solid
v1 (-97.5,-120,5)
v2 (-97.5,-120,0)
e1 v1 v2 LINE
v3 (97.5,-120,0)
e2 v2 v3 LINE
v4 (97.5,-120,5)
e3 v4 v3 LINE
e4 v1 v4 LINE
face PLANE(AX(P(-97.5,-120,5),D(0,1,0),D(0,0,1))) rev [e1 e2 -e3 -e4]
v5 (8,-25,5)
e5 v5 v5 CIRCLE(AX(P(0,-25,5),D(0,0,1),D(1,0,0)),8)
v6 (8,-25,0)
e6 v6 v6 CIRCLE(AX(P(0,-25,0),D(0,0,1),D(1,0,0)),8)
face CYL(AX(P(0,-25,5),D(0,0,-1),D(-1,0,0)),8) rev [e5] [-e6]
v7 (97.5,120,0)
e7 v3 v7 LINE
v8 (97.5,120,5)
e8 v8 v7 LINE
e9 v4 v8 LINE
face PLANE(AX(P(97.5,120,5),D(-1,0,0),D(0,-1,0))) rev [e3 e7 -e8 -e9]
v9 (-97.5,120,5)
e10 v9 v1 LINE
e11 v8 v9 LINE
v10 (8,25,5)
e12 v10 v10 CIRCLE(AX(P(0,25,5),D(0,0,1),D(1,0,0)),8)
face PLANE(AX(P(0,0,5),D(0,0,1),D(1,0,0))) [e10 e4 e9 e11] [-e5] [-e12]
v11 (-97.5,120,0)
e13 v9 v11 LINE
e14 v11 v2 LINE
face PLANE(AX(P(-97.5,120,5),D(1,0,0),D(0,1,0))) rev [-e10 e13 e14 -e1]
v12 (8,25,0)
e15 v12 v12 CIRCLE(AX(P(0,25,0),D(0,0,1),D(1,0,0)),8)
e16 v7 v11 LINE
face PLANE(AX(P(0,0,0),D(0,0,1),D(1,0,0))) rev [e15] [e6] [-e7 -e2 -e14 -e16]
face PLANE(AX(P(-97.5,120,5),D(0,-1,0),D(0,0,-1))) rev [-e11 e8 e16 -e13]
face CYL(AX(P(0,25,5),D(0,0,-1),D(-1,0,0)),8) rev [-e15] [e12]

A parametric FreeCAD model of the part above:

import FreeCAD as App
import Part
import Sketcher

doc = App.newDocument("Part")
body = doc.addObject("PartDesign::Body", "Body")

sketch1 = body.newObject("Sketcher::SketchObject", "Sketch")
sketch1.AttachmentSupport = (doc.getObject("XY_Plane"), [""])
sketch1.MapMode = "FlatFace"
sketch1.addGeometry(Part.LineSegment(App.Vector(-98, 120, 0), App.Vector(-98, -120, 0)), False)
sketch1.addGeometry(Part.LineSegment(App.Vector(-98, -120, 0), App.Vector(98, -120, 0)), False)
sketch1.addGeometry(Part.LineSegment(App.Vector(98, -120, 0), App.Vector(98, 120, 0)), False)
sketch1.addGeometry(Part.LineSegment(App.Vector(98, 120, 0), App.Vector(-98, 120, 0)), False)
sketch1.addGeometry(Part.Circle(App.Vector(0, -25, 0), App.Vector(0, 0, 1), 8), False)
sketch1.addGeometry(Part.Circle(App.Vector(0, 25, 0), App.Vector(0, 0, 1), 8), False)
sketch1.addConstraint(Sketcher.Constraint("Coincident", 0, 2, 1, 1))
sketch1.addConstraint(Sketcher.Constraint("Coincident", 1, 2, 2, 1))
sketch1.addConstraint(Sketcher.Constraint("Coincident", 2, 2, 3, 1))
sketch1.addConstraint(Sketcher.Constraint("Coincident", 3, 2, 0, 1))
sketch1.addConstraint(Sketcher.Constraint("Vertical", 0))
sketch1.addConstraint(Sketcher.Constraint("Horizontal", 1))
sketch1.addConstraint(Sketcher.Constraint("Vertical", 2))
sketch1.addConstraint(Sketcher.Constraint("Horizontal", 3))
sketch1.addConstraint(Sketcher.Constraint("Equal", 4, 5))
sketch1.addConstraint(Sketcher.Constraint("Symmetric", 4, 3, 5, 3, -1, 1))
sketch1.addConstraint(Sketcher.Constraint("Symmetric", 0, 2, 2, 2, -1, 1))
sketch1.addConstraint(Sketcher.Constraint("PointOnObject", 4, 3, -2))
sketch1.addConstraint(Sketcher.Constraint("Diameter", 4, 16.0))
sketch1.addConstraint(Sketcher.Constraint("DistanceX", 1, 1, 1, 2, 195.0))
sketch1.addConstraint(Sketcher.Constraint("DistanceY", 0, 2, 0, 1, 240.0))
sketch1.addConstraint(Sketcher.Constraint("DistanceY", 4, 3, -1, 1, 25.0))
pad1 = body.newObject("PartDesign::Pad", "Pad")
pad1.Profile = sketch1
pad1.Length = 5

doc.recompute()
